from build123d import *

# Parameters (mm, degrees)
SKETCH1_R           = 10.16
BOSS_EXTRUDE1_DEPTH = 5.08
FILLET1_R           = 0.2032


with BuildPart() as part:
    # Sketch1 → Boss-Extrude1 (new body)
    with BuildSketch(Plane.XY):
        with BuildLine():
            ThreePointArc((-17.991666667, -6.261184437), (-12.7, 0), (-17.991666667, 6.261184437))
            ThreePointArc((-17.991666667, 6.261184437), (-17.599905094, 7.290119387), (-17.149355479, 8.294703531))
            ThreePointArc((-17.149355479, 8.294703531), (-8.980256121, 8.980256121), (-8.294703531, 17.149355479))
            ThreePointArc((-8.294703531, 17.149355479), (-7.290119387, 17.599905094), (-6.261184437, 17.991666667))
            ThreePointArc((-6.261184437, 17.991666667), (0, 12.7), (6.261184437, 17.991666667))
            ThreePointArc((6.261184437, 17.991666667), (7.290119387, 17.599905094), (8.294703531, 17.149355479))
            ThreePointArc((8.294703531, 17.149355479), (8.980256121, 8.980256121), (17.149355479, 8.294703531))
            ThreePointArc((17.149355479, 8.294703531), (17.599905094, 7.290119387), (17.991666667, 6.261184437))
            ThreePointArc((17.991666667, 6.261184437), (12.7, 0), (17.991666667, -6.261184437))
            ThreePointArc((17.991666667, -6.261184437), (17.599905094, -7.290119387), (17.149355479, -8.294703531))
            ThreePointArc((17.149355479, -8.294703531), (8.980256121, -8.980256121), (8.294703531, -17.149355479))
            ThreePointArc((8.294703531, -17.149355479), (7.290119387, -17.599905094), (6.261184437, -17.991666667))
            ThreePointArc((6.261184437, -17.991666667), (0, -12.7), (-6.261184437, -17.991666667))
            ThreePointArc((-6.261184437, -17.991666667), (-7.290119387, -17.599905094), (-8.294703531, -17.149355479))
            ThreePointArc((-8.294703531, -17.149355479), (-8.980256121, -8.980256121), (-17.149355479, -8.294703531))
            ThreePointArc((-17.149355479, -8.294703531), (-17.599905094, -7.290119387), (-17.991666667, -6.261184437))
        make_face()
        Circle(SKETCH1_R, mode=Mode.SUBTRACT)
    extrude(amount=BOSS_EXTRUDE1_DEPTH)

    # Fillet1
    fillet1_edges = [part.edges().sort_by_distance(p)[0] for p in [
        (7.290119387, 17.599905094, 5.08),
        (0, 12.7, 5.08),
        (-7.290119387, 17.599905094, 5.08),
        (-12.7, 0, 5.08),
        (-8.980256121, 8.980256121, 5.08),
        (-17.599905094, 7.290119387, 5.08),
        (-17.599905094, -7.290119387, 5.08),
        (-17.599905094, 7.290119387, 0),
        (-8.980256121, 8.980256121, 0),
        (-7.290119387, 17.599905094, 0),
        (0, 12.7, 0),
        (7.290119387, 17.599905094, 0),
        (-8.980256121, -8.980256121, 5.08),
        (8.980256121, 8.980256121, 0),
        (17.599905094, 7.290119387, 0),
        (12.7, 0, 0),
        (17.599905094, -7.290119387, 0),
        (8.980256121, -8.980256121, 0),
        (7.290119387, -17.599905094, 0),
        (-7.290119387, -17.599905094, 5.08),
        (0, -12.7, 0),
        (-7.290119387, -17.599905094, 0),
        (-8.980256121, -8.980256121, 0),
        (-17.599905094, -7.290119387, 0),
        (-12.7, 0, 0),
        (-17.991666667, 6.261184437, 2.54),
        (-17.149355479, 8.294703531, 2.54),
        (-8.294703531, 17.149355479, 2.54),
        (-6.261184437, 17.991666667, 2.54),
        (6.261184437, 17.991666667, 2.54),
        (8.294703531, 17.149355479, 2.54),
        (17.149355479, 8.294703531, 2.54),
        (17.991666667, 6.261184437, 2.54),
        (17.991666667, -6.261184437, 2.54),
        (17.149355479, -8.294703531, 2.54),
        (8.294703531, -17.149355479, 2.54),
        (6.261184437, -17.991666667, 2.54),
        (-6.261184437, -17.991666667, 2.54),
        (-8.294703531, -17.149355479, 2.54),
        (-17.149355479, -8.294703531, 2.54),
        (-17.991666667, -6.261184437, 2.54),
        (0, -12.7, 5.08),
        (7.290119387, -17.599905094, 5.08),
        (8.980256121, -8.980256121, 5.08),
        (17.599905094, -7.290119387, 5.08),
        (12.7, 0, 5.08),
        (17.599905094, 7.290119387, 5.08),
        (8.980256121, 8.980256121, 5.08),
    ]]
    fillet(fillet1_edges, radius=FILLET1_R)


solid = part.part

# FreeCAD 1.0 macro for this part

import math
import FreeCAD as App
import Part
import Sketcher

V = App.Vector
Q = App.Units.Quantity


def edges_at(feature, points):
    """Names of the edges that pass closest to the given points."""
    edges = feature.Shape.Edges
    near = lambda p: min(range(len(edges)), key=lambda i: edges[i].distToShape(Part.Vertex(*p))[0])
    return sorted({f"Edge{near(p) + 1}" for p in points})

doc = App.newDocument("Part")
body = doc.addObject("PartDesign::Body", "Body")

# Sketch on XY plane
sketch1 = body.newObject("Sketcher::SketchObject", "Sketch")
sketch1.AttachmentSupport = (doc.getObject("XY_Plane"), [""])
sketch1.MapMode = "FlatFace"
sketch1.addGeometry([
    Part.ArcOfCircle(Part.Circle(V(-19.05, 0, 0), V(0, 0, 1), 6.35), math.radians(-80.405932), math.radians(80.405932)),  # 0
    Part.ArcOfCircle(Part.Circle(V(0, 0, 0), V(0, 0, 1), 19.05), math.radians(-160.811864), math.radians(-154.188137)),  # 1
    Part.ArcOfCircle(Part.Circle(V(-13.470384, -13.470384, 0), V(0, 0, 1), 6.35), math.radians(-35.405932), math.radians(125.405932)),  # 2
    Part.ArcOfCircle(Part.Circle(V(0, 0, 0), V(0, 0, 1), 19.05), math.radians(-115.811863), math.radians(-109.188136)),  # 3
    Part.ArcOfCircle(Part.Circle(V(0, -19.05, 0), V(0, 0, 1), 6.35), math.radians(9.594068), math.radians(170.405932)),  # 4
    Part.ArcOfCircle(Part.Circle(V(0, 0, 0), V(0, 0, 1), 19.05), math.radians(-70.811864), math.radians(-64.188137)),  # 5
    Part.ArcOfCircle(Part.Circle(V(13.470384, -13.470384, 0), V(0, 0, 1), 6.35), math.radians(54.594068), math.radians(215.405932)),  # 6
    Part.ArcOfCircle(Part.Circle(V(0, 0, 0), V(0, 0, 1), 19.05), math.radians(-25.811863), math.radians(-19.188136)),  # 7
    Part.ArcOfCircle(Part.Circle(V(19.05, 0, 0), V(0, 0, 1), 6.35), math.radians(99.594068), math.radians(260.405932)),  # 8
    Part.ArcOfCircle(Part.Circle(V(0, 0, 0), V(0, 0, 1), 19.05), math.radians(19.188136), math.radians(25.811863)),  # 9
    Part.ArcOfCircle(Part.Circle(V(13.470384, 13.470384, 0), V(0, 0, 1), 6.35), math.radians(144.594068), math.radians(305.405932)),  # 10
    Part.ArcOfCircle(Part.Circle(V(0, 0, 0), V(0, 0, 1), 19.05), math.radians(64.188137), math.radians(70.811864)),  # 11
    Part.ArcOfCircle(Part.Circle(V(0, 19.05, 0), V(0, 0, 1), 6.35), math.radians(-170.405932), math.radians(-9.594068)),  # 12
    Part.ArcOfCircle(Part.Circle(V(0, 0, 0), V(0, 0, 1), 19.05), math.radians(109.188136), math.radians(115.811863)),  # 13
    Part.ArcOfCircle(Part.Circle(V(-13.470384, 13.470384, 0), V(0, 0, 1), 6.35), math.radians(-125.405932), math.radians(35.405932)),  # 14
    Part.ArcOfCircle(Part.Circle(V(0, 0, 0), V(0, 0, 1), 19.05), math.radians(154.188137), math.radians(160.811864)),  # 15
    Part.Circle(V(0, 0, 0), V(0, 0, 1), 10.16),  # 16
], False)
sketch1.addConstraint([
    Sketcher.Constraint("Coincident", 0, 1, 1, 1),
    Sketcher.Constraint("Coincident", 1, 2, 2, 2),
    Sketcher.Constraint("Coincident", 2, 1, 3, 1),
    Sketcher.Constraint("Coincident", 3, 2, 4, 2),
    Sketcher.Constraint("Coincident", 4, 1, 5, 1),
    Sketcher.Constraint("Coincident", 5, 2, 6, 2),
    Sketcher.Constraint("Coincident", 6, 1, 7, 1),
    Sketcher.Constraint("Coincident", 7, 2, 8, 2),
    Sketcher.Constraint("Coincident", 8, 1, 9, 1),
    Sketcher.Constraint("Coincident", 9, 2, 10, 2),
    Sketcher.Constraint("Coincident", 10, 1, 11, 1),
    Sketcher.Constraint("Coincident", 11, 2, 12, 2),
    Sketcher.Constraint("Coincident", 12, 1, 13, 1),
    Sketcher.Constraint("Coincident", 13, 2, 14, 2),
    Sketcher.Constraint("Coincident", 14, 1, 15, 1),
    Sketcher.Constraint("Coincident", 15, 2, 0, 2),
    Sketcher.Constraint("Coincident", 1, 3, -1, 1),
    Sketcher.Constraint("Coincident", 3, 3, -1, 1),
    Sketcher.Constraint("Coincident", 5, 3, -1, 1),
    Sketcher.Constraint("Coincident", 7, 3, -1, 1),
    Sketcher.Constraint("Coincident", 9, 3, -1, 1),
    Sketcher.Constraint("Coincident", 11, 3, -1, 1),
    Sketcher.Constraint("Coincident", 13, 3, -1, 1),
    Sketcher.Constraint("Coincident", 15, 3, -1, 1),
    Sketcher.Constraint("Coincident", 16, 3, -1, 1),
    Sketcher.Constraint("Equal", 0, 2),
    Sketcher.Constraint("Equal", 1, 3),
    Sketcher.Constraint("Equal", 2, 4),
    Sketcher.Constraint("Equal", 3, 5),
    Sketcher.Constraint("Equal", 4, 6),
    Sketcher.Constraint("Equal", 5, 7),
    Sketcher.Constraint("Equal", 6, 8),
    Sketcher.Constraint("Equal", 7, 9),
    Sketcher.Constraint("Equal", 8, 10),
    Sketcher.Constraint("Equal", 9, 11),
    Sketcher.Constraint("Equal", 10, 12),
    Sketcher.Constraint("Equal", 11, 13),
    Sketcher.Constraint("Equal", 12, 14),
    Sketcher.Constraint("Equal", 13, 15),
    Sketcher.Constraint("Symmetric", 0, 3, 8, 3, -1, 1),
    Sketcher.Constraint("Symmetric", 2, 3, 10, 3, -1, 1),
    Sketcher.Constraint("Symmetric", 4, 3, 12, 3, -1, 1),
    Sketcher.Constraint("Symmetric", 6, 3, 14, 3, -1, 1),
    Sketcher.Constraint("Symmetric", 2, 3, 6, 3, -2),
    Sketcher.Constraint("PointOnObject", 0, 3, -1),
    Sketcher.Constraint("PointOnObject", 4, 3, -2),
    Sketcher.Constraint("Diameter", 16, Q("0.8 in")),
    Sketcher.Constraint("Radius", 0, Q("0.25 in")),
    Sketcher.Constraint("Radius", 1, Q("0.75 in")),
    Sketcher.Constraint("DistanceX", 0, 3, -1, 1, Q("0.75 in")),
    Sketcher.Constraint("DistanceY", 4, 3, -1, 1, Q("0.75 in")),
    Sketcher.Constraint("DistanceY", 2, 3, 0, 1, Q("7.2092 mm")),
    Sketcher.Constraint("DistanceX", 2, 3, 3, 2, Q("7.2092 mm")),
])
pad1 = body.newObject("PartDesign::Pad", "Pad")
pad1.Profile = sketch1
pad1.Length = Q("0.2 in")
doc.recompute()

fillet = body.newObject("PartDesign::Fillet", "Fillet")
fillet.Base = (pad1, edges_at(pad1, [
    (7.29, 17.6, 5.08),
    (0, 12.7, 5.08),
    (-7.29, 17.6, 5.08),
    (-12.7, 0, 5.08),
    (-8.98, 8.98, 5.08),
    (-17.6, 7.29, 5.08),
    (-17.6, -7.29, 5.08),
    (-17.6, 7.29, 0),
    (-8.98, 8.98, 0),
    (-7.29, 17.6, 0),
    (0, 12.7, 0),
    (7.29, 17.6, 0),
    (-8.98, -8.98, 5.08),
    (8.98, 8.98, 0),
    (17.6, 7.29, 0),
    (12.7, 0, 0),
    (17.6, -7.29, 0),
    (8.98, -8.98, 0),
    (7.29, -17.6, 0),
    (-7.29, -17.6, 5.08),
    (0, -12.7, 0),
    (-7.29, -17.6, 0),
    (-8.98, -8.98, 0),
    (-17.6, -7.29, 0),
    (-12.7, 0, 0),
    (-17.992, 6.261, 2.54),
    (-17.149, 8.295, 2.54),
    (-8.295, 17.149, 2.54),
    (-6.261, 17.992, 2.54),
    (6.261, 17.992, 2.54),
    (8.295, 17.149, 2.54),
    (17.149, 8.295, 2.54),
    (17.992, 6.261, 2.54),
    (17.992, -6.261, 2.54),
    (17.149, -8.295, 2.54),
    (8.295, -17.149, 2.54),
    (6.261, -17.992, 2.54),
    (-6.261, -17.992, 2.54),
    (-8.295, -17.149, 2.54),
    (-17.149, -8.295, 2.54),
    (-17.992, -6.261, 2.54),
    (0, -12.7, 5.08),
    (7.29, -17.6, 5.08),
    (8.98, -8.98, 5.08),
    (17.6, -7.29, 5.08),
    (12.7, 0, 5.08),
    (17.6, 7.29, 5.08),
    (8.98, 8.98, 5.08),
]))
fillet.Radius = Q("0.008 in")

doc.recompute()
